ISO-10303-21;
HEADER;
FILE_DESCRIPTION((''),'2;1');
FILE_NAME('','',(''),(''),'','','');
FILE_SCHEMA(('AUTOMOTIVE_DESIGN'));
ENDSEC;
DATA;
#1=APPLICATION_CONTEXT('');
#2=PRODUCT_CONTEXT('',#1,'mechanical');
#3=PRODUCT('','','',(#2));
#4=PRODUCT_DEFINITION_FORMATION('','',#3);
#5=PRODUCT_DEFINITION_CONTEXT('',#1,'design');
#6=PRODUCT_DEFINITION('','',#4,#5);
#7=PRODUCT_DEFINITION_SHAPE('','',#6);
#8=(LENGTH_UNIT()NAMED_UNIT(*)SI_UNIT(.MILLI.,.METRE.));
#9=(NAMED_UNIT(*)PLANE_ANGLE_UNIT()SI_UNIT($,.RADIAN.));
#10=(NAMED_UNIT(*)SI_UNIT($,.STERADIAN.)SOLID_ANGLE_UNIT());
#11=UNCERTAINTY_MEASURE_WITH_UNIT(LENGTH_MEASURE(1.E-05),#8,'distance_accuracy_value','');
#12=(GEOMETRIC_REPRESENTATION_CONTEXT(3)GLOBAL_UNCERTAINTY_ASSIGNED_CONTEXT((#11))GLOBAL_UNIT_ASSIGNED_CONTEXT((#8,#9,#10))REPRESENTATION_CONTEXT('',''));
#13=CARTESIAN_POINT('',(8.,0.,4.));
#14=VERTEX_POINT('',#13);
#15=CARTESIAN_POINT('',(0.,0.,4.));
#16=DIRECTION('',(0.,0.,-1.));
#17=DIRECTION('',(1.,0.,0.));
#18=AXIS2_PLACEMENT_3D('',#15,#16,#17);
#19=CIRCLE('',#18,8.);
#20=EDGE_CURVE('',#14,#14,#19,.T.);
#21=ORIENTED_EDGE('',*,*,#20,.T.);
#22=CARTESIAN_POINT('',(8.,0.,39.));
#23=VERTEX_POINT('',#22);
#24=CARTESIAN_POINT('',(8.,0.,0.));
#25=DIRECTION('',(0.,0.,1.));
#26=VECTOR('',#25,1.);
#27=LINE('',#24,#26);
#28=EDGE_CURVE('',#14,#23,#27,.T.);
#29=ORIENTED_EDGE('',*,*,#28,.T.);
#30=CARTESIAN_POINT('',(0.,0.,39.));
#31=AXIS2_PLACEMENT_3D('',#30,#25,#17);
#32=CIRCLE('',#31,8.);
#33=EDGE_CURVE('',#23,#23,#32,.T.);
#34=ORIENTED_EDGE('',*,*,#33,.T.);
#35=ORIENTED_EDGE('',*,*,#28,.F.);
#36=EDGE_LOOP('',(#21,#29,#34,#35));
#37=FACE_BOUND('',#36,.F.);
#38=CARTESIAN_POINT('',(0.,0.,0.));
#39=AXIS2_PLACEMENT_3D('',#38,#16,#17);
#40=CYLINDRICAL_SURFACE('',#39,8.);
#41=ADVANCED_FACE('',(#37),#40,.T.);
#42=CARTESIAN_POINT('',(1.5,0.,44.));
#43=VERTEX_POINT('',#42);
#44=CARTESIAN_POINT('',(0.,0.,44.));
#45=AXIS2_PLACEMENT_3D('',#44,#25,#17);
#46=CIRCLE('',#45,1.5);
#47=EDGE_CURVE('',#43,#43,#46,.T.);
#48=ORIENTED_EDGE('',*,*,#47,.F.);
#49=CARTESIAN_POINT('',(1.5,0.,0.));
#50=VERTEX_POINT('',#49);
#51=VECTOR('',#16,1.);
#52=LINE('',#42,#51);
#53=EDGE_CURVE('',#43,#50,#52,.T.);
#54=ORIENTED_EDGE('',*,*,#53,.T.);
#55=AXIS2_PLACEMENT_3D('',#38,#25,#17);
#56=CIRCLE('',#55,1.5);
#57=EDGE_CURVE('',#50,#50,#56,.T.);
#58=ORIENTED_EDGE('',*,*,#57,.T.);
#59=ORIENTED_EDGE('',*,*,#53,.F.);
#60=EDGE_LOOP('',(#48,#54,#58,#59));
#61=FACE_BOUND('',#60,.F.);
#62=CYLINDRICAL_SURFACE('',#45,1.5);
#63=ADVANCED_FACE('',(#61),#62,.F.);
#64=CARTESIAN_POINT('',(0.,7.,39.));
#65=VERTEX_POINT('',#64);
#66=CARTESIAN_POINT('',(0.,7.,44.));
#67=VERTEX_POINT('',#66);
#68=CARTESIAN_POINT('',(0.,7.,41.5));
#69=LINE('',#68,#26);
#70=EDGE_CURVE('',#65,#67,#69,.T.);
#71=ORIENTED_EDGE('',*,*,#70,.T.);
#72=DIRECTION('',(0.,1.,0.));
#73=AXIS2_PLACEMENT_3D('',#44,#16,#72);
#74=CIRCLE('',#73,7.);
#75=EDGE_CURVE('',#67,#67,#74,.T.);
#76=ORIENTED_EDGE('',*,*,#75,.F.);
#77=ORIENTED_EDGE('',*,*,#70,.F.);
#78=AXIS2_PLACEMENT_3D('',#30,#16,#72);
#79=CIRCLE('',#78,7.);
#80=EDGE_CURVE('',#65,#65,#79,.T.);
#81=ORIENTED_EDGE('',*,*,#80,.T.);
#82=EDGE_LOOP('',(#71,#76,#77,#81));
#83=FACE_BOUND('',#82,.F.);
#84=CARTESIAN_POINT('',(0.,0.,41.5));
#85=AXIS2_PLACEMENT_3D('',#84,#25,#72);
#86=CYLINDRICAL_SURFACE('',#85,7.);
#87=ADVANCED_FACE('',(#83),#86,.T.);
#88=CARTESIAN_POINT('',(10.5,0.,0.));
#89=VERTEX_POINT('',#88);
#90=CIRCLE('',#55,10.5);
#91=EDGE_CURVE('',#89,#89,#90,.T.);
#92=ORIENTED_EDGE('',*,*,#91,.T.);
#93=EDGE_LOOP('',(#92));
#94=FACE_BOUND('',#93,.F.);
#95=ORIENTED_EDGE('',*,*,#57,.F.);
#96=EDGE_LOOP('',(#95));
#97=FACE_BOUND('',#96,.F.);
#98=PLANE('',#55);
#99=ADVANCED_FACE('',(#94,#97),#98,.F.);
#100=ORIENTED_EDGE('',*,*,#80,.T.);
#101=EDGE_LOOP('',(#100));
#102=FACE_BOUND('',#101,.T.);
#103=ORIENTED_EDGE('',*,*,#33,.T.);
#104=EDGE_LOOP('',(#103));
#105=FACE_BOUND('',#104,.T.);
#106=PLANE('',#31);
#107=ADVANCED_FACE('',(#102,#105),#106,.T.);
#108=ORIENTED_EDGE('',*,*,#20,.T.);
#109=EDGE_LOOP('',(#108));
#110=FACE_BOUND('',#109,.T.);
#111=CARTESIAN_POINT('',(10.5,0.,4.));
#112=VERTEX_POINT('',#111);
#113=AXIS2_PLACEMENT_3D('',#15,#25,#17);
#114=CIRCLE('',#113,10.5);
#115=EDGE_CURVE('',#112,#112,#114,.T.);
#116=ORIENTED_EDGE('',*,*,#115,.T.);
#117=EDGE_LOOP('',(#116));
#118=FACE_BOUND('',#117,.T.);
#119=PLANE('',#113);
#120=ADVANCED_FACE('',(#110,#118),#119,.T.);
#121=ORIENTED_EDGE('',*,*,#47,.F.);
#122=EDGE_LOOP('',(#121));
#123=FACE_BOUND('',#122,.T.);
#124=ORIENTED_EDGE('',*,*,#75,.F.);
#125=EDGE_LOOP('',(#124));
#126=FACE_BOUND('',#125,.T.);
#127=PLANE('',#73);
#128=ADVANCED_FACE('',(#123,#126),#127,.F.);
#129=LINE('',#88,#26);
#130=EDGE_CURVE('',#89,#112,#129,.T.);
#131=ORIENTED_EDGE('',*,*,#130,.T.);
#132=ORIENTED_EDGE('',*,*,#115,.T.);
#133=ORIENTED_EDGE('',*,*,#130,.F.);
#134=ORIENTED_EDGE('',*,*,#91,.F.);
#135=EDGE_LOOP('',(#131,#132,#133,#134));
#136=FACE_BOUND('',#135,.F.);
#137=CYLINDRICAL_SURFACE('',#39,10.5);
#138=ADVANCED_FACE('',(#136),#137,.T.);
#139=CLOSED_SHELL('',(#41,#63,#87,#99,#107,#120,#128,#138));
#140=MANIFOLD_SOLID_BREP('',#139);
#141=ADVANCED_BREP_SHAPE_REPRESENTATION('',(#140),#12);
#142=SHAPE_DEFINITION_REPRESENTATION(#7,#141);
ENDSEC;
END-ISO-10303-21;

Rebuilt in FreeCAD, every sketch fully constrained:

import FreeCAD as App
import Part
import Sketcher
from FreeCAD import Vector
Q = App.Units.Quantity


def add_polygon(sketch, points):
    """Adds a closed chain of lines whose ends are joined by coincident constraints."""
    first, n = sketch.GeometryCount, len(points)
    for a, b in zip(points, points[1:] + points[:1]):
        sketch.addGeometry(Part.LineSegment(App.Vector(*a, 0), App.Vector(*b, 0)), False)
    for i in range(n):
        sketch.addConstraint(Sketcher.Constraint("Coincident", first + i, 2, first + (i + 1) % n, 1))

doc = App.newDocument("Part")
body = doc.addObject("PartDesign::Body", "Body")

# Sketch on XY plane
sketch1 = doc.addObject("Sketcher::SketchObject", "Sketch")
body.addObject(sketch1)
sketch1.AttachmentSupport = (doc.XY_Plane, [""])
sketch1.MapMode = "FlatFace"
sketch1.addGeometry(Part.Circle(Vector(0, 0, 0), Vector(0, 0, 1), 10.5), False)
sketch1.addConstraint([
    Sketcher.Constraint("Coincident", 0, 3, -1, 1),
    Sketcher.Constraint("Diameter", 0, Q("21 mm")),
])
pad1 = doc.addObject("PartDesign::Pad", "Pad")
body.addObject(pad1)
pad1.Profile = sketch1
pad1.Length = 4

# Sketch on XY plane
sketch2 = doc.addObject("Sketcher::SketchObject", "Sketch001")
body.addObject(sketch2)
sketch2.AttachmentSupport = (doc.XY_Plane, [""])
sketch2.MapMode = "FlatFace"
sketch2.addGeometry(Part.Circle(Vector(0, 0, 0), Vector(0, 0, 1), 8), False)
sketch2.addConstraint([
    Sketcher.Constraint("Coincident", 0, 3, -1, 1),
    Sketcher.Constraint("Diameter", 0, Q("16 mm")),
])
pad2 = doc.addObject("PartDesign::Pad", "Pad001")
body.addObject(pad2)
pad2.Profile = sketch2
pad2.Length = 39

# Sketch on YZ plane
sketch3 = doc.addObject("Sketcher::SketchObject", "Sketch002")
body.addObject(sketch3)
sketch3.AttachmentSupport = (doc.YZ_Plane, [""])
sketch3.MapMode = "FlatFace"
add_polygon(sketch3, [(0, 44), (0, 39), (7, 39), (7, 44)])  # lines 0-3
sketch3.addConstraint([
    Sketcher.Constraint("Vertical", 0),
    Sketcher.Constraint("Horizontal", 1),
    Sketcher.Constraint("Vertical", 2),
    Sketcher.Constraint("Horizontal", 3),
    Sketcher.Constraint("PointOnObject", 0, 2, -2),
    Sketcher.Constraint("DistanceX", 1, 1, 1, 2, Q("7 mm")),
    Sketcher.Constraint("DistanceY", 0, 2, 0, 1, Q("5 mm")),
    Sketcher.Constraint("DistanceY", -1, 1, 0, 2, Q("39 mm")),
])
revolution = doc.addObject("PartDesign::Revolution", "Revolution")
body.addObject(revolution)
revolution.Profile = sketch3
revolution.ReferenceAxis = (sketch3, ["V_Axis"])
revolution.Angle = 360

# Sketch on XY plane
sketch4 = doc.addObject("Sketcher::SketchObject", "Sketch003")
body.addObject(sketch4)
sketch4.AttachmentSupport = (doc.XY_Plane, [""])
sketch4.MapMode = "FlatFace"
sketch4.AttachmentOffset = App.Placement(Vector(0, 0, 44), App.Rotation())
sketch4.addGeometry(Part.Circle(Vector(0, 0, 0), Vector(0, 0, 1), 1.5), False)
sketch4.addConstraint([
    Sketcher.Constraint("Coincident", 0, 3, -1, 1),
    Sketcher.Constraint("Diameter", 0, Q("3 mm")),
])
pocket1 = doc.addObject("PartDesign::Pocket", "Pocket")
body.addObject(pocket1)
pocket1.Profile = sketch4
pocket1.Length = 47.7

doc.recompute()
